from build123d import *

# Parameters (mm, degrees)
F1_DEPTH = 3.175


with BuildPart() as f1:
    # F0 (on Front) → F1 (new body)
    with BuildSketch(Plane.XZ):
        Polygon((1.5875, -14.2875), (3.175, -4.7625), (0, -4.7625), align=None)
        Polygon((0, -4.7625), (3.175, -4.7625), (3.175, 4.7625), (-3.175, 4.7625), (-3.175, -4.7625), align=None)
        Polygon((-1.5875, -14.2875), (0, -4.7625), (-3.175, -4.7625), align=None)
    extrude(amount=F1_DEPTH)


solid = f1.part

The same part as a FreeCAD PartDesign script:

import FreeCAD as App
import Part
import Sketcher
from FreeCAD import Vector
Q = App.Units.Quantity

doc = App.newDocument("Part")
body = doc.addObject("PartDesign::Body", "Body")

# Sketch on XZ plane
sketch1 = body.newObject("Sketcher::SketchObject", "Sketch")
sketch1.AttachmentSupport = (doc.getObject("XZ_Plane"), [""])
sketch1.MapMode = "FlatFace"
sketch1.addGeometry(Part.LineSegment(Vector(2, -14, 0), Vector(3, -5, 0)), False)
sketch1.addGeometry(Part.LineSegment(Vector(3, -5, 0), Vector(3, 5, 0)), False)
sketch1.addGeometry(Part.LineSegment(Vector(3, 5, 0), Vector(-3, 5, 0)), False)
sketch1.addGeometry(Part.LineSegment(Vector(-3, 5, 0), Vector(-3, -5, 0)), False)
sketch1.addGeometry(Part.LineSegment(Vector(-3, -5, 0), Vector(-2, -14, 0)), False)
sketch1.addGeometry(Part.LineSegment(Vector(-2, -14, 0), Vector(0, -5, 0)), False)
sketch1.addGeometry(Part.LineSegment(Vector(0, -5, 0), Vector(2, -14, 0)), False)
sketch1.addConstraint(Sketcher.Constraint("Coincident", 0, 2, 1, 1))
sketch1.addConstraint(Sketcher.Constraint("Coincident", 1, 2, 2, 1))
sketch1.addConstraint(Sketcher.Constraint("Coincident", 2, 2, 3, 1))
sketch1.addConstraint(Sketcher.Constraint("Coincident", 3, 2, 4, 1))
sketch1.addConstraint(Sketcher.Constraint("Coincident", 4, 2, 5, 1))
sketch1.addConstraint(Sketcher.Constraint("Coincident", 5, 2, 6, 1))
sketch1.addConstraint(Sketcher.Constraint("Coincident", 6, 2, 0, 1))
sketch1.addConstraint(Sketcher.Constraint("Vertical", 1))
sketch1.addConstraint(Sketcher.Constraint("Horizontal", 2))
sketch1.addConstraint(Sketcher.Constraint("Vertical", 3))
sketch1.addConstraint(Sketcher.Constraint("Symmetric", 0, 2, 2, 2, -1, 1))
sketch1.addConstraint(Sketcher.Constraint("Symmetric", 4, 2, 6, 2, -2))
sketch1.addConstraint(Sketcher.Constraint("PointOnObject", 5, 2, -2))
sketch1.addConstraint(Sketcher.Constraint("Parallel", 0, 5))
sketch1.addConstraint(Sketcher.Constraint("Parallel", 4, 6))
sketch1.addConstraint(Sketcher.Constraint("Horizontal", 3, 2, 5, 2))
sketch1.addConstraint(Sketcher.Constraint("DistanceX", 2, 2, 2, 1, Q("0.25 in")))
sketch1.addConstraint(Sketcher.Constraint("DistanceY", 1, 1, 1, 2, Q("0.375 in")))
sketch1.addConstraint(Sketcher.Constraint("DistanceY", 4, 2, 2, 2, Q("0.75 in")))
pad1 = body.newObject("PartDesign::Pad", "Pad")
pad1.Profile = sketch1
pad1.Length = Q("0.125 in")

doc.recompute()
